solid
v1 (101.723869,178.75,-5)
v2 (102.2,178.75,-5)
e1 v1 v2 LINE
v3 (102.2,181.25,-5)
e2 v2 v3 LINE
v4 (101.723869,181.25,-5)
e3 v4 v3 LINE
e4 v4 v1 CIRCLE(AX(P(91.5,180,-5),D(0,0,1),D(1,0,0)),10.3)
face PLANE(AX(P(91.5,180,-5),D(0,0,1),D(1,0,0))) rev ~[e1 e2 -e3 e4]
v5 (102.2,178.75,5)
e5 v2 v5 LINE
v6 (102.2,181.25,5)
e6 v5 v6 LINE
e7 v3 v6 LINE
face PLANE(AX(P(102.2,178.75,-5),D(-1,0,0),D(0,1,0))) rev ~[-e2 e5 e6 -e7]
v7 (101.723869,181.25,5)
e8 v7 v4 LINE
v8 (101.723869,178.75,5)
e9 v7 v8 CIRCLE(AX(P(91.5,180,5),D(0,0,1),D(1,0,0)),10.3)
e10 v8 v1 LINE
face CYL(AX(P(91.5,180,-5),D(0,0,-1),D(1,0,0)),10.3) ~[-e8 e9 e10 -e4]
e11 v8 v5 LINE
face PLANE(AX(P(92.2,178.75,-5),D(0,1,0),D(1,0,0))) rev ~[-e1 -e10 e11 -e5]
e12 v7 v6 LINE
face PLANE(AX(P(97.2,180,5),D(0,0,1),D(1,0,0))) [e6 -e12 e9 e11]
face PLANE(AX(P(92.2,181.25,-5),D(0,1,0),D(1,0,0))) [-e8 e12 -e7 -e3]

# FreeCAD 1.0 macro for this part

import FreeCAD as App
import Part
import Sketcher

V = App.Vector
Q = App.Units.Quantity


def add_polygon(sketch, points):
    """Adds a closed chain of lines whose ends are joined by coincident constraints."""
    first, n = sketch.GeometryCount, len(points)
    for a, b in zip(points, points[1:] + points[:1]):
        sketch.addGeometry(Part.LineSegment(App.Vector(*a, 0), App.Vector(*b, 0)), False)
    for i in range(n):
        sketch.addConstraint(Sketcher.Constraint("Coincident", first + i, 2, first + (i + 1) % n, 1))

doc = App.newDocument("Part")
params = doc.addObject("Spreadsheet::Sheet", "Params")
for row, (alias, value) in enumerate([
    ("sketch1_width", "10 mm"),
    ("sketch1_height", "2.5 mm"),
    ("pad1_length", "10 mm"),
    ("sketch2_diameter", "20.6 mm"),
    ("pad2_length", "10 mm"),
], start=1):
    params.set(f"A{row}", alias)
    params.set(f"B{row}", "=" + value)
    params.setAlias(f"B{row}", alias)

body = doc.addObject("PartDesign::Body", "Body")

sketch1 = body.newObject("Sketcher::SketchObject", "Sketch")
sketch1.AttachmentSupport = (doc.getObject("XY_Plane"), [""])
sketch1.MapMode = "FlatFace"
sketch1.AttachmentOffset = App.Placement(V(0, 0, -5), App.Rotation())
add_polygon(sketch1, [(85.7, 166.2), (85.7, 163.8), (95.7, 163.8), (95.7, 166.2)])
sketch1.addConstraint(Sketcher.Constraint("Vertical", 0))
sketch1.addConstraint(Sketcher.Constraint("Horizontal", 1))
sketch1.addConstraint(Sketcher.Constraint("Vertical", 2))
sketch1.addConstraint(Sketcher.Constraint("Horizontal", 3))
sketch1.addConstraint(Sketcher.Constraint("DistanceX", 1, 1, 1, 2, Q("10 mm")))
sketch1.addConstraint(Sketcher.Constraint("DistanceY", 0, 2, 0, 1, Q("2.5 mm")))
sketch1.addConstraint(Sketcher.Constraint("DistanceX", -1, 1, 0, 2, Q("85.7 mm")))
sketch1.addConstraint(Sketcher.Constraint("DistanceY", -1, 1, 0, 2, Q("163.75 mm")))
sketch1.setExpression("Constraints[8]", "Params.sketch1_width")
sketch1.setExpression("Constraints[9]", "Params.sketch1_height")
pad1 = body.newObject("PartDesign::Pad", "Pad")
pad1.Profile = sketch1
pad1.setExpression("Length", "Params.pad1_length")
body2 = doc.addObject("PartDesign::Body", "Body001")

sketch2 = body2.newObject("Sketcher::SketchObject", "Sketch001")
sketch2.AttachmentSupport = (doc.getObject("XY_Plane001"), [""])
sketch2.MapMode = "FlatFace"
sketch2.AttachmentOffset = App.Placement(V(0, 0, -5), App.Rotation())
sketch2.addGeometry(Part.Circle(V(85, 165, 0), V(0, 0, 1), 10), False)
sketch2.addConstraint(Sketcher.Constraint("Diameter", 0, Q("20.6 mm")))
sketch2.addConstraint(Sketcher.Constraint("DistanceX", -1, 1, 0, 3, Q("85 mm")))
sketch2.addConstraint(Sketcher.Constraint("DistanceY", -1, 1, 0, 3, Q("165 mm")))
sketch2.setExpression("Constraints[0]", "Params.sketch2_diameter")
pad2 = body2.newObject("PartDesign::Pad", "Pad001")
pad2.Profile = sketch2
pad2.setExpression("Length", "Params.pad2_length")
doc.recompute()

boolean = body2.newObject("PartDesign::Boolean", "Boolean")
boolean.Type = "Fuse"
boolean.addObjects([body])
body3 = doc.addObject("PartDesign::Body", "Body002")
doc.recompute()

body2.Placement = App.Placement(V(6.5, 15, 0), App.Rotation(V(0, 0, 1), 0))
boolean2 = body3.newObject("PartDesign::Boolean", "Boolean001")
boolean2.Type = "Fuse"
boolean2.addObjects([body2])

doc.recompute()
